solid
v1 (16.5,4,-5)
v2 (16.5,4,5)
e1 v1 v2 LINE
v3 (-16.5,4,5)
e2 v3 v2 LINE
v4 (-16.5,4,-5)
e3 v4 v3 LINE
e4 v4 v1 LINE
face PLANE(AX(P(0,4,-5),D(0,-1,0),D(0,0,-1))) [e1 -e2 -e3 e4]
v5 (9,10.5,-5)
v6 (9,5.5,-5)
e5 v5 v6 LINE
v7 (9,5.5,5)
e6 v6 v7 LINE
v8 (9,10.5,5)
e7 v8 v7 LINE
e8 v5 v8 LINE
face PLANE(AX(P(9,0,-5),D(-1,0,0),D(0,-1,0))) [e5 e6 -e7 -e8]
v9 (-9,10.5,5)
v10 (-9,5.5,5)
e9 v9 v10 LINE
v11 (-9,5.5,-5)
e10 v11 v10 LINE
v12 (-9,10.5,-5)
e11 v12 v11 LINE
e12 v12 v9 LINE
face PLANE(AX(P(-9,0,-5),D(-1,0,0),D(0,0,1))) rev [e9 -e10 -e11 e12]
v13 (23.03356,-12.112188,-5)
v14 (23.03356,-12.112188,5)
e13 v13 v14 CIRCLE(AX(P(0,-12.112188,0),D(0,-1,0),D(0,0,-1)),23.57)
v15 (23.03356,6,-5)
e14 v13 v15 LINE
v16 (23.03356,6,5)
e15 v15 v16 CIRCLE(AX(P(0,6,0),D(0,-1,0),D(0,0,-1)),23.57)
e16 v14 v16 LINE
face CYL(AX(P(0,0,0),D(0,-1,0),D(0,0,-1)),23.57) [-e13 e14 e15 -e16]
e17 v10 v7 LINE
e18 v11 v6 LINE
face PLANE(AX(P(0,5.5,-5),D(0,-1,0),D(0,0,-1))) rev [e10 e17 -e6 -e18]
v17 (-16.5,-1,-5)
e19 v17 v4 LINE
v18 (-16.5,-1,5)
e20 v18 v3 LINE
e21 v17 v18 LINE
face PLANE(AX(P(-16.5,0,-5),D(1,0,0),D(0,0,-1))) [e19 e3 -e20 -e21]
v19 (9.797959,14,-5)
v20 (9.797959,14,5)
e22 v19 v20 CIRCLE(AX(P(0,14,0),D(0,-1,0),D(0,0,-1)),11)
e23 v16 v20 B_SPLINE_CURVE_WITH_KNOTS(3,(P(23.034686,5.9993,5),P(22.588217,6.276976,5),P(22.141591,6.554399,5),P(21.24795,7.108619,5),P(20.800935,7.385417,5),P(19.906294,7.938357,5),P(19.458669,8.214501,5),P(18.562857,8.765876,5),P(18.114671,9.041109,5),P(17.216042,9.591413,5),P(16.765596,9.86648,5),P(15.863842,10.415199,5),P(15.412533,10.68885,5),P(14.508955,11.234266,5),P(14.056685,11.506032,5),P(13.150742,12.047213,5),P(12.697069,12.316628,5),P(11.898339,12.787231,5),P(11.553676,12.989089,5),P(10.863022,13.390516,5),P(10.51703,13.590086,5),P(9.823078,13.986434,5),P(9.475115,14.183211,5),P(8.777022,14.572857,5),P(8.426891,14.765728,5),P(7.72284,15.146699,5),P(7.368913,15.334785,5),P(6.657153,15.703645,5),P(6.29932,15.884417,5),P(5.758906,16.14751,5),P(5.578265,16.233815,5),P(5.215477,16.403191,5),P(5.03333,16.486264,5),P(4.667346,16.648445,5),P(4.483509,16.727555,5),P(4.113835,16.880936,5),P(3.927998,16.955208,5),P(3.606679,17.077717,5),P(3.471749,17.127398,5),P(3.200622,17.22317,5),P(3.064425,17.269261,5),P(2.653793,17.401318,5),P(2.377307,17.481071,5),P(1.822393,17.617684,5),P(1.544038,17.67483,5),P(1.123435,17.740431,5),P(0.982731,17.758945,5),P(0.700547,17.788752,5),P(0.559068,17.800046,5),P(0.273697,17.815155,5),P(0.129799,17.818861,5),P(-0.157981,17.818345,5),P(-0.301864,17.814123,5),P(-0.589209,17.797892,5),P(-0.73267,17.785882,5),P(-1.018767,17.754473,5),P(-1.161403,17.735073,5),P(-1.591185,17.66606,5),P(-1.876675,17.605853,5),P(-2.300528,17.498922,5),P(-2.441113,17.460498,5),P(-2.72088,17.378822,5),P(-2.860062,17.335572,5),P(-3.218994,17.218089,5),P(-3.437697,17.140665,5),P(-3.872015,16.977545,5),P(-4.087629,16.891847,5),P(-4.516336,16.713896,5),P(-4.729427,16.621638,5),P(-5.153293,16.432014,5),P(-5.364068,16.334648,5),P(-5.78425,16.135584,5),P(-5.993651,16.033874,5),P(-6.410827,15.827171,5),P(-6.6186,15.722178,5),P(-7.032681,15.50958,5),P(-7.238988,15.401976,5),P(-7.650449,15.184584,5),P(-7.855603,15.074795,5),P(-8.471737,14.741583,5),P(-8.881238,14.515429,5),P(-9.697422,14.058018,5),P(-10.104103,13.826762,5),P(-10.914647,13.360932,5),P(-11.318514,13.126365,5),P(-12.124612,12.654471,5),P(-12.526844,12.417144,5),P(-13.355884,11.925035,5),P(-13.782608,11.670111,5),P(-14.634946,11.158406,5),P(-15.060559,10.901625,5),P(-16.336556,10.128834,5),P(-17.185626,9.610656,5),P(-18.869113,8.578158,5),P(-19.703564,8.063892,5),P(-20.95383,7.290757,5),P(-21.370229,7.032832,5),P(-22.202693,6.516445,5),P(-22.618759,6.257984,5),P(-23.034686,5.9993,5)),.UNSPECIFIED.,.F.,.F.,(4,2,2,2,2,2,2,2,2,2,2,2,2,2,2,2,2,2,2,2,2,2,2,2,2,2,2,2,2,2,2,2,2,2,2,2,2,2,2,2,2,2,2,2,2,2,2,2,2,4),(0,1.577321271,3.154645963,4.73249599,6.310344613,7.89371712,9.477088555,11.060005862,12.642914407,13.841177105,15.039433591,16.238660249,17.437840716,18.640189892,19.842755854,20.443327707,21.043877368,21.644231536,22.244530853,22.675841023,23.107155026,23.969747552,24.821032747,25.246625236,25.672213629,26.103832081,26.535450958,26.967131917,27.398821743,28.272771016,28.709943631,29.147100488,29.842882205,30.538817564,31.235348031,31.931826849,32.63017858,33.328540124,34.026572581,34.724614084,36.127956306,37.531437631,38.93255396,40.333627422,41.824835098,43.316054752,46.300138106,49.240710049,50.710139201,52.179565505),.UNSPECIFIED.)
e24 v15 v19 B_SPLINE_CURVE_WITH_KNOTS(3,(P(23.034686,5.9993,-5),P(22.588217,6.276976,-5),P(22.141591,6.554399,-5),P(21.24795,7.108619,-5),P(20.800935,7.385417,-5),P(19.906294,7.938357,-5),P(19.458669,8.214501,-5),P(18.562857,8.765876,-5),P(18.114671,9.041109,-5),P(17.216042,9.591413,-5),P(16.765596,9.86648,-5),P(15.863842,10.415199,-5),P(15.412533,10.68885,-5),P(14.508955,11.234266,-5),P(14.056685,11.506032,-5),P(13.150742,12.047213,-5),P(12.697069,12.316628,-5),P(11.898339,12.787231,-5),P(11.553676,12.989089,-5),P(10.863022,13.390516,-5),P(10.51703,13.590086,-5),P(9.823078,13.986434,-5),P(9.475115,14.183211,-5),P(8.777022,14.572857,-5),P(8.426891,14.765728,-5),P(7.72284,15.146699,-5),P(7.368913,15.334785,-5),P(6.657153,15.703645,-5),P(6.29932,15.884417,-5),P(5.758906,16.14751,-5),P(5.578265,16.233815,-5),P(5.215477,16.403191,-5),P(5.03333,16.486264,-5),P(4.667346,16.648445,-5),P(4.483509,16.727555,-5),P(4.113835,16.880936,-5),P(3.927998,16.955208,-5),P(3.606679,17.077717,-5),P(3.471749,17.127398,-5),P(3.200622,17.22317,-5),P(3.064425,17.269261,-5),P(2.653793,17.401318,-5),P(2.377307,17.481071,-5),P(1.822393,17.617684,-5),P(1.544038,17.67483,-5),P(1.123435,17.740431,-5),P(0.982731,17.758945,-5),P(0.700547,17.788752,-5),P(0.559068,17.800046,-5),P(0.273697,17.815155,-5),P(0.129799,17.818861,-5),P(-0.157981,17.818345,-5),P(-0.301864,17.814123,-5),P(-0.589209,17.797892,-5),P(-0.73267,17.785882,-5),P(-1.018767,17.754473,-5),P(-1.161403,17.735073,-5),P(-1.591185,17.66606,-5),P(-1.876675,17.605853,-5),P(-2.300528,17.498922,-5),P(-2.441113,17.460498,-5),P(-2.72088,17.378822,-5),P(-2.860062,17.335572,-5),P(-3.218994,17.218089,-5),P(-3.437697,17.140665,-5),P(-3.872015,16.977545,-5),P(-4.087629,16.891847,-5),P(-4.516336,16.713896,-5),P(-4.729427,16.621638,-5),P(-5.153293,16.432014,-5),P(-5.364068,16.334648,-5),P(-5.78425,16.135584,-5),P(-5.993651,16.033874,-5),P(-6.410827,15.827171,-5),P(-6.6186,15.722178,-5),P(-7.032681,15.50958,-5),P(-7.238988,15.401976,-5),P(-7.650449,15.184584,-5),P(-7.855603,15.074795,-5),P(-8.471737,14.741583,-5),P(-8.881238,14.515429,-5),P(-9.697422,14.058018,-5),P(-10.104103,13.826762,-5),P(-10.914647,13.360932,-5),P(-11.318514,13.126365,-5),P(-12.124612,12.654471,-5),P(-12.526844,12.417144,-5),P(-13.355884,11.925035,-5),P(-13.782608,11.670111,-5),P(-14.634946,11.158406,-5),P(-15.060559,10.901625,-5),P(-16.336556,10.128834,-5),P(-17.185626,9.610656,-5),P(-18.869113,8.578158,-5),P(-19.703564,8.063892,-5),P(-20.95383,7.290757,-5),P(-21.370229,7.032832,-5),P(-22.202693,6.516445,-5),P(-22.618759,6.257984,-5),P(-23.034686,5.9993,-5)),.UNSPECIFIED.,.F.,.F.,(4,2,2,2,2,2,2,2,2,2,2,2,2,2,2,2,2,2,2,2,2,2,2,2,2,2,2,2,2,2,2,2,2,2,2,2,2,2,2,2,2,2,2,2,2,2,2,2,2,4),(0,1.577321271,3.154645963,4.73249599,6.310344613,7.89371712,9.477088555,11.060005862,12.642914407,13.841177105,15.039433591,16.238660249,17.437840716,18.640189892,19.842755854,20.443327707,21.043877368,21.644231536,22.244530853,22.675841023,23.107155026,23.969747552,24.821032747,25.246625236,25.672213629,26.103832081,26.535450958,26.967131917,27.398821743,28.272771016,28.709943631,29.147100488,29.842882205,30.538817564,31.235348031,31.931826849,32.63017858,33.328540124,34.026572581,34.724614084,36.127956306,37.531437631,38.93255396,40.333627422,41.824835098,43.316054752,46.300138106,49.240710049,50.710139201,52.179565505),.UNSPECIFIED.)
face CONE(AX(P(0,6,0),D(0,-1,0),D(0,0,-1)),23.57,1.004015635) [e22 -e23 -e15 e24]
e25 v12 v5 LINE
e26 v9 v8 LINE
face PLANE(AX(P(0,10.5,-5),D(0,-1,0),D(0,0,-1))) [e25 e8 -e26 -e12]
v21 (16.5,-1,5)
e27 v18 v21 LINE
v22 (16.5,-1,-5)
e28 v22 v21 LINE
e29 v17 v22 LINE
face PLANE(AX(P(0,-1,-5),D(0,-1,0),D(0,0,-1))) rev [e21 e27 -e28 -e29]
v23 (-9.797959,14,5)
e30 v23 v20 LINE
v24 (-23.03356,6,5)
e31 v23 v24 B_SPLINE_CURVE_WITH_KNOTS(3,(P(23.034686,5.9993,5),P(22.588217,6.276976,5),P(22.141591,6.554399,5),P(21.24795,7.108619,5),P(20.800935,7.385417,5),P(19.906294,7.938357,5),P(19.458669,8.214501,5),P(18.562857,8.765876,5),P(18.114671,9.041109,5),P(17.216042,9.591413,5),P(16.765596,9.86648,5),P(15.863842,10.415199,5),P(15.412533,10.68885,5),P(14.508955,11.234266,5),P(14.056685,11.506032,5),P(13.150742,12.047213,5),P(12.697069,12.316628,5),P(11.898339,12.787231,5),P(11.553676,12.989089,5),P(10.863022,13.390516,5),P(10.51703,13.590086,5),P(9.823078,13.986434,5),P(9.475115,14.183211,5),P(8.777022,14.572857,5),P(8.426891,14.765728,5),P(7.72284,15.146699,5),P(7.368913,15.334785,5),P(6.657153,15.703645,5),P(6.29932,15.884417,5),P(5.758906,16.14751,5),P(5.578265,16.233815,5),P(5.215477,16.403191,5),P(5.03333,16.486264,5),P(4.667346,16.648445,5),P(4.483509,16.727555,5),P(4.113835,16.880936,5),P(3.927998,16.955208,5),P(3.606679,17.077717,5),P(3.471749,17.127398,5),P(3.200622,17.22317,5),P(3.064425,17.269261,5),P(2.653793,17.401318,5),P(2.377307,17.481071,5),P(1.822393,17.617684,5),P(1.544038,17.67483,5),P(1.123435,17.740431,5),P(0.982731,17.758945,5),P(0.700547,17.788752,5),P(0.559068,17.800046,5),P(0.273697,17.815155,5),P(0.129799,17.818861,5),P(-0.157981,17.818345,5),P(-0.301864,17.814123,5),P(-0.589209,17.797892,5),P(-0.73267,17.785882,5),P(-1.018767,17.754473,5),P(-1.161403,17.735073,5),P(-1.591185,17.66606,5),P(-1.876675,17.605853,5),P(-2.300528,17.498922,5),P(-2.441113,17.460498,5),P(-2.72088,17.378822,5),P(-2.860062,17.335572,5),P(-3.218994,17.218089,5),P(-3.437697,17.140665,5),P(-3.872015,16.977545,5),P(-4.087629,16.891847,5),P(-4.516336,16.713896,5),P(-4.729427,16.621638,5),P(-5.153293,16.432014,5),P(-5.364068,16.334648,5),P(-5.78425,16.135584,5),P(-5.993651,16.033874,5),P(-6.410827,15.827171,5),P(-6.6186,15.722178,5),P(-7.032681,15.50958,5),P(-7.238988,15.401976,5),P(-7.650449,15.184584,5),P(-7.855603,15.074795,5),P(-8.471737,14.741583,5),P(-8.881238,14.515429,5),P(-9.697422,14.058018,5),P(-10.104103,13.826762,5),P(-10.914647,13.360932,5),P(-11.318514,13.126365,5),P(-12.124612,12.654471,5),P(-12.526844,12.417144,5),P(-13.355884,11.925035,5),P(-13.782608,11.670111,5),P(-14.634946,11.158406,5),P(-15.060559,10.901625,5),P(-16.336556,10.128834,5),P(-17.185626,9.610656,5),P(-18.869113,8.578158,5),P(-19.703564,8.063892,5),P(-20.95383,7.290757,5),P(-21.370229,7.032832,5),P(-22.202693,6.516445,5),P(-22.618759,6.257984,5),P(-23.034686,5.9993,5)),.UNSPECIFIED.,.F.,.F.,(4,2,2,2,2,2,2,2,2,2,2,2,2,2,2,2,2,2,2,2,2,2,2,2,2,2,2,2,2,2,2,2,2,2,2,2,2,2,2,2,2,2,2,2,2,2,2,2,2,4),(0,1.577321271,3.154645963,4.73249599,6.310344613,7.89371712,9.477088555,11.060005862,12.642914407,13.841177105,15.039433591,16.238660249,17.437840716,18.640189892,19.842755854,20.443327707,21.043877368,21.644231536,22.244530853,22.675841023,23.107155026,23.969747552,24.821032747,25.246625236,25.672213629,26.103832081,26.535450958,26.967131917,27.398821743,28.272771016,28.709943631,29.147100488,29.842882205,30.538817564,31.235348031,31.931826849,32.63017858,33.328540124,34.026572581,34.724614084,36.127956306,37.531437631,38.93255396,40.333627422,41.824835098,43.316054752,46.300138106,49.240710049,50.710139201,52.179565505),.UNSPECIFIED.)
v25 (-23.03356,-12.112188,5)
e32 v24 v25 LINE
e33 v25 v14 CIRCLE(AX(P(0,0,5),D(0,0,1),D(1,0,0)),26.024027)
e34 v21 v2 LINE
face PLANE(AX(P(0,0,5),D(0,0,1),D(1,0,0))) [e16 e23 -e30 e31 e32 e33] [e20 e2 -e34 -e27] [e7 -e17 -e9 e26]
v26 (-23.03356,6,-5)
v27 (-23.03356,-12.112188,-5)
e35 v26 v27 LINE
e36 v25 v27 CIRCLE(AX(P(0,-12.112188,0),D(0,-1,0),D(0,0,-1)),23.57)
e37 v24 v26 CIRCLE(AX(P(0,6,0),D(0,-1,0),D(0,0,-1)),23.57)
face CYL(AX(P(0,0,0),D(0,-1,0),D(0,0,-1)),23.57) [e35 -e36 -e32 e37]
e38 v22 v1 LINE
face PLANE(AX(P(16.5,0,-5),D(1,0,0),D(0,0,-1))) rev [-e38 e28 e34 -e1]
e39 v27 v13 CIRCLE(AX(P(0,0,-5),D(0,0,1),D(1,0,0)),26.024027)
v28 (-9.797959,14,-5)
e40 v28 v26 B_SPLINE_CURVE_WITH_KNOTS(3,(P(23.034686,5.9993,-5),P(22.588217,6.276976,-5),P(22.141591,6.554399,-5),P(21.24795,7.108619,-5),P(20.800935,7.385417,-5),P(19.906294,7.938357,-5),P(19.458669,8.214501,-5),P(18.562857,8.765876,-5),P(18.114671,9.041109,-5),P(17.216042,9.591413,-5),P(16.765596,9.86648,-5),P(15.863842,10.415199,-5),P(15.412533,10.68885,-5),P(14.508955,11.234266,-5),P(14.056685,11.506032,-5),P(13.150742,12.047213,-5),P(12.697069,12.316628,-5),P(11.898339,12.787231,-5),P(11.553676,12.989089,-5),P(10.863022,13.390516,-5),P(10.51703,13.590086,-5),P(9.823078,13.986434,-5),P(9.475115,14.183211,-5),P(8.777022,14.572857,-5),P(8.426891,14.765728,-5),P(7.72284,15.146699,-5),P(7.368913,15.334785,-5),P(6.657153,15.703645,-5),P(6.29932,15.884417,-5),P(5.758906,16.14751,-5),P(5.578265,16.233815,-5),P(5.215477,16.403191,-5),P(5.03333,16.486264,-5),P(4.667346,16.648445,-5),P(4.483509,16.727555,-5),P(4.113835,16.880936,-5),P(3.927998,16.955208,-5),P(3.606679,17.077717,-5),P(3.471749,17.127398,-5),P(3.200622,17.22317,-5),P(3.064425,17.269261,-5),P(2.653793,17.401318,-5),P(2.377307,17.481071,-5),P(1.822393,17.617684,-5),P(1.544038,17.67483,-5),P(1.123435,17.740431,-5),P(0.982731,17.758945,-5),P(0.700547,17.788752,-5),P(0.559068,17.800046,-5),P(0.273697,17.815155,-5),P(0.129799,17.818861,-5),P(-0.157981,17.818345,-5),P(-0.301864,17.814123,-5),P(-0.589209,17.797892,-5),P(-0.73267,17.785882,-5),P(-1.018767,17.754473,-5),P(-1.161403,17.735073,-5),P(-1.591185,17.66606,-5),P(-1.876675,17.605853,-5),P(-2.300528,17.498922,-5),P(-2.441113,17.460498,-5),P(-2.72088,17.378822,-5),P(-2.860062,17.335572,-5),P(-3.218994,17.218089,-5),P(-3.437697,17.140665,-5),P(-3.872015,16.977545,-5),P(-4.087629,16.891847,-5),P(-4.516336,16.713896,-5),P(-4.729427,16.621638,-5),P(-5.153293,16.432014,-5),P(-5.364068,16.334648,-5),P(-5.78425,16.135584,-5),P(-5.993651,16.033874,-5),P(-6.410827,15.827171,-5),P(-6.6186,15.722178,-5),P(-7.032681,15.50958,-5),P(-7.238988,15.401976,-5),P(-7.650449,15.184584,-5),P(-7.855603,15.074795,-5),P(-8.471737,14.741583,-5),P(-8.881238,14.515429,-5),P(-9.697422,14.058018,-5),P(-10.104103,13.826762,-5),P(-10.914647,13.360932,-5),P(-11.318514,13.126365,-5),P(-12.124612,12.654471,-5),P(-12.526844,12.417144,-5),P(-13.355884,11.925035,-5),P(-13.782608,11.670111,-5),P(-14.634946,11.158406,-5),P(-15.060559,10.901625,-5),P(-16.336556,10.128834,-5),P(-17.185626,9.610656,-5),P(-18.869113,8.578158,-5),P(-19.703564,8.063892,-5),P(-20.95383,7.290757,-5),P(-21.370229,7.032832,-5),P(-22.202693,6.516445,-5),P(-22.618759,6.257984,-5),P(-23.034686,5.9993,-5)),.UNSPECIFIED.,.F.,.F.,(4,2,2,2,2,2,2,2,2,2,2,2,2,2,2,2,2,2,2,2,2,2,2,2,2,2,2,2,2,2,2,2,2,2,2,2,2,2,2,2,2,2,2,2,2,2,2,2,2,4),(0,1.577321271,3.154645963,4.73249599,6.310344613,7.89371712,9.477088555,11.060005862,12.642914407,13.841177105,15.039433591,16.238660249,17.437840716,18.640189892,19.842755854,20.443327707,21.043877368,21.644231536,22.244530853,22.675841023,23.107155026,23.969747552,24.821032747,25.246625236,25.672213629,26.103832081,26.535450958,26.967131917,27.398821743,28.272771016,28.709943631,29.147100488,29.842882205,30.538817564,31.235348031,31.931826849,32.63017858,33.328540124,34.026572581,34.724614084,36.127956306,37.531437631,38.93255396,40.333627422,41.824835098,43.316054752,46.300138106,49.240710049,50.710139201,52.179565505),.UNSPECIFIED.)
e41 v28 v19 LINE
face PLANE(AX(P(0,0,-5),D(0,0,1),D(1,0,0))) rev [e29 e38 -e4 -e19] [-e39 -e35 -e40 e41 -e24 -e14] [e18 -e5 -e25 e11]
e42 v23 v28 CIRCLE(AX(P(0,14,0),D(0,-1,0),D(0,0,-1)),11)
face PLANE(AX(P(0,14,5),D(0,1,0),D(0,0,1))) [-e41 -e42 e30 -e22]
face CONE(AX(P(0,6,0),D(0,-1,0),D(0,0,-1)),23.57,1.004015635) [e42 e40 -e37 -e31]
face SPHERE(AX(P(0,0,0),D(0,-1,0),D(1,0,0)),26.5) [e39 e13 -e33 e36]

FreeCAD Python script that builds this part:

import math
import FreeCAD as App
import Part
import Sketcher
from FreeCAD import Vector
Q = App.Units.Quantity


def add_polygon(sketch, points):
    """Adds a closed chain of lines whose ends are joined by coincident constraints."""
    first, n = sketch.GeometryCount, len(points)
    for a, b in zip(points, points[1:] + points[:1]):
        sketch.addGeometry(Part.LineSegment(App.Vector(*a, 0), App.Vector(*b, 0)), False)
    for i in range(n):
        sketch.addConstraint(Sketcher.Constraint("Coincident", first + i, 2, first + (i + 1) % n, 1))

doc = App.newDocument("Part")
body = doc.addObject("PartDesign::Body", "Body")

# Sketch on XY plane
sketch1 = body.newObject("Sketcher::SketchObject", "Sketch")
sketch1.AttachmentSupport = (doc.getObject("XY_Plane"), [""])
sketch1.MapMode = "FlatFace"
sketch1.addGeometry(Part.LineSegment(Vector(-24, 6, 0), Vector(-24, -12, 0)), False)
sketch1.addGeometry(Part.ArcOfCircle(Part.Circle(Vector(0, 0, 0), Vector(0, 0, 1), 26), math.radians(-153), math.radians(-90)), False)
sketch1.addGeometry(Part.LineSegment(Vector(0, -26, 0), Vector(0, 14, 0)), False)
sketch1.addGeometry(Part.LineSegment(Vector(0, 14, 0), Vector(-11, 14, 0)), False)
sketch1.addGeometry(Part.LineSegment(Vector(-11, 14, 0), Vector(-24, 6, 0)), False)
sketch1.addConstraint(Sketcher.Constraint("Coincident", 0, 2, 1, 1))
sketch1.addConstraint(Sketcher.Constraint("Coincident", 1, 2, 2, 1))
sketch1.addConstraint(Sketcher.Constraint("Coincident", 2, 2, 3, 1))
sketch1.addConstraint(Sketcher.Constraint("Coincident", 3, 2, 4, 1))
sketch1.addConstraint(Sketcher.Constraint("Coincident", 4, 2, 0, 1))
sketch1.addConstraint(Sketcher.Constraint("Vertical", 0))
sketch1.addConstraint(Sketcher.Constraint("Vertical", 2))
sketch1.addConstraint(Sketcher.Constraint("Horizontal", 3))
sketch1.addConstraint(Sketcher.Constraint("Coincident", 1, 3, -1, 1))
sketch1.addConstraint(Sketcher.Constraint("PointOnObject", 1, 2, -2))
sketch1.addConstraint(Sketcher.Constraint("Radius", 1, Q("26.5 mm")))
sketch1.addConstraint(Sketcher.Constraint("DistanceX", 3, 2, 3, 1, Q("11 mm")))
sketch1.addConstraint(Sketcher.Constraint("DistanceY", 2, 1, 2, 2, Q("40.5 mm")))
sketch1.addConstraint(Sketcher.Constraint("DistanceY", -1, 1, 4, 2, Q("6 mm")))
sketch1.addConstraint(Sketcher.Constraint("DistanceX", 0, 2, -1, 1, Q("23.57 mm")))
pad1 = body.newObject("PartDesign::Pad", "Pad")
pad1.Profile = sketch1
pad1.Length = 10
pad1.Midplane = True
doc.recompute()

mirrored = body.newObject("PartDesign::Mirrored", "Mirrored")
mirrored.Originals = [pad1]
mirrored.MirrorPlane = (doc.getObject("YZ_Plane"), [""])
body.Tip = mirrored

# Sketch on XY plane
sketch2 = body.newObject("Sketcher::SketchObject", "Sketch001")
sketch2.AttachmentSupport = (doc.getObject("XY_Plane"), [""])
sketch2.MapMode = "FlatFace"
sketch2.addGeometry(Part.ArcOfCircle(Part.Circle(Vector(0, 0, 0), Vector(0, 0, 1), 26), math.radians(-153), math.radians(-90)), False)
sketch2.addGeometry(Part.LineSegment(Vector(-24, -12, 0), Vector(-24, 6, 0)), False)
sketch2.addGeometry(Part.LineSegment(Vector(-24, 6, 0), Vector(-11, 14, 0)), False)
sketch2.addGeometry(Part.LineSegment(Vector(-11, 14, 0), Vector(0, 14, 0)), False)
sketch2.addGeometry(Part.LineSegment(Vector(0, 14, 0), Vector(0, 40, 0)), False)
sketch2.addGeometry(Part.ArcOfCircle(Part.Circle(Vector(0, 0, 0), Vector(0, 0, 1), 40), math.radians(90), math.radians(270)), False)
sketch2.addGeometry(Part.LineSegment(Vector(0, -40, 0), Vector(0, -26, 0)), False)
sketch2.addConstraint(Sketcher.Constraint("Coincident", 0, 1, 1, 1))
sketch2.addConstraint(Sketcher.Constraint("Coincident", 1, 2, 2, 1))
sketch2.addConstraint(Sketcher.Constraint("Coincident", 2, 2, 3, 1))
sketch2.addConstraint(Sketcher.Constraint("Coincident", 3, 2, 4, 1))
sketch2.addConstraint(Sketcher.Constraint("Coincident", 4, 2, 5, 1))
sketch2.addConstraint(Sketcher.Constraint("Coincident", 5, 2, 6, 1))
sketch2.addConstraint(Sketcher.Constraint("Coincident", 6, 2, 0, 2))
sketch2.addConstraint(Sketcher.Constraint("Vertical", 1))
sketch2.addConstraint(Sketcher.Constraint("Horizontal", 3))
sketch2.addConstraint(Sketcher.Constraint("Vertical", 4))
sketch2.addConstraint(Sketcher.Constraint("Vertical", 6))
sketch2.addConstraint(Sketcher.Constraint("Coincident", 0, 3, -1, 1))
sketch2.addConstraint(Sketcher.Constraint("Coincident", 5, 3, -1, 1))
sketch2.addConstraint(Sketcher.Constraint("PointOnObject", 3, 2, -2))
sketch2.addConstraint(Sketcher.Constraint("PointOnObject", 5, 2, -2))
sketch2.addConstraint(Sketcher.Constraint("Radius", 0, Q("26.5 mm")))
sketch2.addConstraint(Sketcher.Constraint("DistanceX", 3, 1, 3, 2, Q("11 mm")))
sketch2.addConstraint(Sketcher.Constraint("DistanceY", -1, 1, 1, 2, Q("6 mm")))
sketch2.addConstraint(Sketcher.Constraint("DistanceY", -1, 1, 2, 2, Q("14 mm")))
sketch2.addConstraint(Sketcher.Constraint("DistanceX", 0, 1, -1, 1, Q("23.57 mm")))
sketch2.addConstraint(Sketcher.Constraint("Radius", 5, Q("39.736432 mm")))
groove = body.newObject("PartDesign::Groove", "Groove")
groove.Profile = sketch2
groove.ReferenceAxis = (sketch2, ["V_Axis"])
groove.Angle = 360

# Sketch on XY plane
sketch3 = body.newObject("Sketcher::SketchObject", "Sketch002")
sketch3.AttachmentSupport = (doc.getObject("XY_Plane"), [""])
sketch3.MapMode = "FlatFace"
add_polygon(sketch3, [(-9, 10), (-9, 6), (9, 6), (9, 10)])  # lines 0-3
add_polygon(sketch3, [(-16, 4), (-16, -1), (16, -1), (16, 4)])  # lines 4-7
sketch3.addConstraint(Sketcher.Constraint("Vertical", 0))
sketch3.addConstraint(Sketcher.Constraint("Horizontal", 1))
sketch3.addConstraint(Sketcher.Constraint("Vertical", 2))
sketch3.addConstraint(Sketcher.Constraint("Horizontal", 3))
sketch3.addConstraint(Sketcher.Constraint("Vertical", 4))
sketch3.addConstraint(Sketcher.Constraint("Horizontal", 5))
sketch3.addConstraint(Sketcher.Constraint("Vertical", 6))
sketch3.addConstraint(Sketcher.Constraint("Horizontal", 7))
sketch3.addConstraint(Sketcher.Constraint("Equal", 2, 4))
sketch3.addConstraint(Sketcher.Constraint("DistanceX", 1, 1, 1, 2, Q("18 mm")))
sketch3.addConstraint(Sketcher.Constraint("DistanceX", 5, 1, 5, 2, Q("33 mm")))
sketch3.addConstraint(Sketcher.Constraint("DistanceY", 0, 2, 0, 1, Q("5 mm")))
sketch3.addConstraint(Sketcher.Constraint("DistanceX", 0, 2, -1, 1, Q("9 mm")))
sketch3.addConstraint(Sketcher.Constraint("DistanceY", 4, 2, -1, 1, Q("1 mm")))
sketch3.addConstraint(Sketcher.Constraint("DistanceY", -1, 1, 0, 2, Q("5.5 mm")))
sketch3.addConstraint(Sketcher.Constraint("DistanceX", 4, 2, -1, 1, Q("16.5 mm")))
pocket1 = body.newObject("PartDesign::Pocket", "Pocket")
pocket1.Profile = sketch3
pocket1.Type = "ThroughAll"
pocket1.Midplane = True

doc.recompute()
